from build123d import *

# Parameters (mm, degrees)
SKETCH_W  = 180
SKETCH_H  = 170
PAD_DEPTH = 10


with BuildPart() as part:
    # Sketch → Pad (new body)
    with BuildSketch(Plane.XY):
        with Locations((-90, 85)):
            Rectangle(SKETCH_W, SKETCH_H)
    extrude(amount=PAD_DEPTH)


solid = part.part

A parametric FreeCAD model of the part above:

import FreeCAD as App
import Part
import Sketcher

V = App.Vector
Q = App.Units.Quantity

doc = App.newDocument("Part")
body = doc.addObject("PartDesign::Body", "Body")

# Sketch on XY plane
sketch1 = body.newObject("Sketcher::SketchObject", "Sketch")
sketch1.AttachmentSupport = (doc.getObject("XY_Plane"), [""])
sketch1.MapMode = "FlatFace"
sketch1.addGeometry([
    Part.LineSegment(V(-180, 170, 0), V(-180, 0, 0)),
    Part.LineSegment(V(-180, 0, 0), V(0, 0, 0)),
    Part.LineSegment(V(0, 0, 0), V(0, 170, 0)),
    Part.LineSegment(V(0, 170, 0), V(-180, 170, 0)),
], False)
sketch1.addConstraint([
    Sketcher.Constraint("Coincident", 0, 2, 1, 1),
    Sketcher.Constraint("Coincident", 1, 2, 2, 1),
    Sketcher.Constraint("Coincident", 2, 2, 3, 1),
    Sketcher.Constraint("Coincident", 3, 2, 0, 1),
    Sketcher.Constraint("Vertical", 0),
    Sketcher.Constraint("Horizontal", 1),
    Sketcher.Constraint("Vertical", 2),
    Sketcher.Constraint("Horizontal", 3),
    Sketcher.Constraint("Coincident", 1, 2, -1, 1),
    Sketcher.Constraint("DistanceX", 1, 1, 1, 2, Q("180 mm")),
    Sketcher.Constraint("DistanceY", 0, 2, 0, 1, Q("170 mm")),
])
pad1 = body.newObject("PartDesign::Pad", "Pad")
pad1.Profile = sketch1
pad1.Length = 10

doc.recompute()
